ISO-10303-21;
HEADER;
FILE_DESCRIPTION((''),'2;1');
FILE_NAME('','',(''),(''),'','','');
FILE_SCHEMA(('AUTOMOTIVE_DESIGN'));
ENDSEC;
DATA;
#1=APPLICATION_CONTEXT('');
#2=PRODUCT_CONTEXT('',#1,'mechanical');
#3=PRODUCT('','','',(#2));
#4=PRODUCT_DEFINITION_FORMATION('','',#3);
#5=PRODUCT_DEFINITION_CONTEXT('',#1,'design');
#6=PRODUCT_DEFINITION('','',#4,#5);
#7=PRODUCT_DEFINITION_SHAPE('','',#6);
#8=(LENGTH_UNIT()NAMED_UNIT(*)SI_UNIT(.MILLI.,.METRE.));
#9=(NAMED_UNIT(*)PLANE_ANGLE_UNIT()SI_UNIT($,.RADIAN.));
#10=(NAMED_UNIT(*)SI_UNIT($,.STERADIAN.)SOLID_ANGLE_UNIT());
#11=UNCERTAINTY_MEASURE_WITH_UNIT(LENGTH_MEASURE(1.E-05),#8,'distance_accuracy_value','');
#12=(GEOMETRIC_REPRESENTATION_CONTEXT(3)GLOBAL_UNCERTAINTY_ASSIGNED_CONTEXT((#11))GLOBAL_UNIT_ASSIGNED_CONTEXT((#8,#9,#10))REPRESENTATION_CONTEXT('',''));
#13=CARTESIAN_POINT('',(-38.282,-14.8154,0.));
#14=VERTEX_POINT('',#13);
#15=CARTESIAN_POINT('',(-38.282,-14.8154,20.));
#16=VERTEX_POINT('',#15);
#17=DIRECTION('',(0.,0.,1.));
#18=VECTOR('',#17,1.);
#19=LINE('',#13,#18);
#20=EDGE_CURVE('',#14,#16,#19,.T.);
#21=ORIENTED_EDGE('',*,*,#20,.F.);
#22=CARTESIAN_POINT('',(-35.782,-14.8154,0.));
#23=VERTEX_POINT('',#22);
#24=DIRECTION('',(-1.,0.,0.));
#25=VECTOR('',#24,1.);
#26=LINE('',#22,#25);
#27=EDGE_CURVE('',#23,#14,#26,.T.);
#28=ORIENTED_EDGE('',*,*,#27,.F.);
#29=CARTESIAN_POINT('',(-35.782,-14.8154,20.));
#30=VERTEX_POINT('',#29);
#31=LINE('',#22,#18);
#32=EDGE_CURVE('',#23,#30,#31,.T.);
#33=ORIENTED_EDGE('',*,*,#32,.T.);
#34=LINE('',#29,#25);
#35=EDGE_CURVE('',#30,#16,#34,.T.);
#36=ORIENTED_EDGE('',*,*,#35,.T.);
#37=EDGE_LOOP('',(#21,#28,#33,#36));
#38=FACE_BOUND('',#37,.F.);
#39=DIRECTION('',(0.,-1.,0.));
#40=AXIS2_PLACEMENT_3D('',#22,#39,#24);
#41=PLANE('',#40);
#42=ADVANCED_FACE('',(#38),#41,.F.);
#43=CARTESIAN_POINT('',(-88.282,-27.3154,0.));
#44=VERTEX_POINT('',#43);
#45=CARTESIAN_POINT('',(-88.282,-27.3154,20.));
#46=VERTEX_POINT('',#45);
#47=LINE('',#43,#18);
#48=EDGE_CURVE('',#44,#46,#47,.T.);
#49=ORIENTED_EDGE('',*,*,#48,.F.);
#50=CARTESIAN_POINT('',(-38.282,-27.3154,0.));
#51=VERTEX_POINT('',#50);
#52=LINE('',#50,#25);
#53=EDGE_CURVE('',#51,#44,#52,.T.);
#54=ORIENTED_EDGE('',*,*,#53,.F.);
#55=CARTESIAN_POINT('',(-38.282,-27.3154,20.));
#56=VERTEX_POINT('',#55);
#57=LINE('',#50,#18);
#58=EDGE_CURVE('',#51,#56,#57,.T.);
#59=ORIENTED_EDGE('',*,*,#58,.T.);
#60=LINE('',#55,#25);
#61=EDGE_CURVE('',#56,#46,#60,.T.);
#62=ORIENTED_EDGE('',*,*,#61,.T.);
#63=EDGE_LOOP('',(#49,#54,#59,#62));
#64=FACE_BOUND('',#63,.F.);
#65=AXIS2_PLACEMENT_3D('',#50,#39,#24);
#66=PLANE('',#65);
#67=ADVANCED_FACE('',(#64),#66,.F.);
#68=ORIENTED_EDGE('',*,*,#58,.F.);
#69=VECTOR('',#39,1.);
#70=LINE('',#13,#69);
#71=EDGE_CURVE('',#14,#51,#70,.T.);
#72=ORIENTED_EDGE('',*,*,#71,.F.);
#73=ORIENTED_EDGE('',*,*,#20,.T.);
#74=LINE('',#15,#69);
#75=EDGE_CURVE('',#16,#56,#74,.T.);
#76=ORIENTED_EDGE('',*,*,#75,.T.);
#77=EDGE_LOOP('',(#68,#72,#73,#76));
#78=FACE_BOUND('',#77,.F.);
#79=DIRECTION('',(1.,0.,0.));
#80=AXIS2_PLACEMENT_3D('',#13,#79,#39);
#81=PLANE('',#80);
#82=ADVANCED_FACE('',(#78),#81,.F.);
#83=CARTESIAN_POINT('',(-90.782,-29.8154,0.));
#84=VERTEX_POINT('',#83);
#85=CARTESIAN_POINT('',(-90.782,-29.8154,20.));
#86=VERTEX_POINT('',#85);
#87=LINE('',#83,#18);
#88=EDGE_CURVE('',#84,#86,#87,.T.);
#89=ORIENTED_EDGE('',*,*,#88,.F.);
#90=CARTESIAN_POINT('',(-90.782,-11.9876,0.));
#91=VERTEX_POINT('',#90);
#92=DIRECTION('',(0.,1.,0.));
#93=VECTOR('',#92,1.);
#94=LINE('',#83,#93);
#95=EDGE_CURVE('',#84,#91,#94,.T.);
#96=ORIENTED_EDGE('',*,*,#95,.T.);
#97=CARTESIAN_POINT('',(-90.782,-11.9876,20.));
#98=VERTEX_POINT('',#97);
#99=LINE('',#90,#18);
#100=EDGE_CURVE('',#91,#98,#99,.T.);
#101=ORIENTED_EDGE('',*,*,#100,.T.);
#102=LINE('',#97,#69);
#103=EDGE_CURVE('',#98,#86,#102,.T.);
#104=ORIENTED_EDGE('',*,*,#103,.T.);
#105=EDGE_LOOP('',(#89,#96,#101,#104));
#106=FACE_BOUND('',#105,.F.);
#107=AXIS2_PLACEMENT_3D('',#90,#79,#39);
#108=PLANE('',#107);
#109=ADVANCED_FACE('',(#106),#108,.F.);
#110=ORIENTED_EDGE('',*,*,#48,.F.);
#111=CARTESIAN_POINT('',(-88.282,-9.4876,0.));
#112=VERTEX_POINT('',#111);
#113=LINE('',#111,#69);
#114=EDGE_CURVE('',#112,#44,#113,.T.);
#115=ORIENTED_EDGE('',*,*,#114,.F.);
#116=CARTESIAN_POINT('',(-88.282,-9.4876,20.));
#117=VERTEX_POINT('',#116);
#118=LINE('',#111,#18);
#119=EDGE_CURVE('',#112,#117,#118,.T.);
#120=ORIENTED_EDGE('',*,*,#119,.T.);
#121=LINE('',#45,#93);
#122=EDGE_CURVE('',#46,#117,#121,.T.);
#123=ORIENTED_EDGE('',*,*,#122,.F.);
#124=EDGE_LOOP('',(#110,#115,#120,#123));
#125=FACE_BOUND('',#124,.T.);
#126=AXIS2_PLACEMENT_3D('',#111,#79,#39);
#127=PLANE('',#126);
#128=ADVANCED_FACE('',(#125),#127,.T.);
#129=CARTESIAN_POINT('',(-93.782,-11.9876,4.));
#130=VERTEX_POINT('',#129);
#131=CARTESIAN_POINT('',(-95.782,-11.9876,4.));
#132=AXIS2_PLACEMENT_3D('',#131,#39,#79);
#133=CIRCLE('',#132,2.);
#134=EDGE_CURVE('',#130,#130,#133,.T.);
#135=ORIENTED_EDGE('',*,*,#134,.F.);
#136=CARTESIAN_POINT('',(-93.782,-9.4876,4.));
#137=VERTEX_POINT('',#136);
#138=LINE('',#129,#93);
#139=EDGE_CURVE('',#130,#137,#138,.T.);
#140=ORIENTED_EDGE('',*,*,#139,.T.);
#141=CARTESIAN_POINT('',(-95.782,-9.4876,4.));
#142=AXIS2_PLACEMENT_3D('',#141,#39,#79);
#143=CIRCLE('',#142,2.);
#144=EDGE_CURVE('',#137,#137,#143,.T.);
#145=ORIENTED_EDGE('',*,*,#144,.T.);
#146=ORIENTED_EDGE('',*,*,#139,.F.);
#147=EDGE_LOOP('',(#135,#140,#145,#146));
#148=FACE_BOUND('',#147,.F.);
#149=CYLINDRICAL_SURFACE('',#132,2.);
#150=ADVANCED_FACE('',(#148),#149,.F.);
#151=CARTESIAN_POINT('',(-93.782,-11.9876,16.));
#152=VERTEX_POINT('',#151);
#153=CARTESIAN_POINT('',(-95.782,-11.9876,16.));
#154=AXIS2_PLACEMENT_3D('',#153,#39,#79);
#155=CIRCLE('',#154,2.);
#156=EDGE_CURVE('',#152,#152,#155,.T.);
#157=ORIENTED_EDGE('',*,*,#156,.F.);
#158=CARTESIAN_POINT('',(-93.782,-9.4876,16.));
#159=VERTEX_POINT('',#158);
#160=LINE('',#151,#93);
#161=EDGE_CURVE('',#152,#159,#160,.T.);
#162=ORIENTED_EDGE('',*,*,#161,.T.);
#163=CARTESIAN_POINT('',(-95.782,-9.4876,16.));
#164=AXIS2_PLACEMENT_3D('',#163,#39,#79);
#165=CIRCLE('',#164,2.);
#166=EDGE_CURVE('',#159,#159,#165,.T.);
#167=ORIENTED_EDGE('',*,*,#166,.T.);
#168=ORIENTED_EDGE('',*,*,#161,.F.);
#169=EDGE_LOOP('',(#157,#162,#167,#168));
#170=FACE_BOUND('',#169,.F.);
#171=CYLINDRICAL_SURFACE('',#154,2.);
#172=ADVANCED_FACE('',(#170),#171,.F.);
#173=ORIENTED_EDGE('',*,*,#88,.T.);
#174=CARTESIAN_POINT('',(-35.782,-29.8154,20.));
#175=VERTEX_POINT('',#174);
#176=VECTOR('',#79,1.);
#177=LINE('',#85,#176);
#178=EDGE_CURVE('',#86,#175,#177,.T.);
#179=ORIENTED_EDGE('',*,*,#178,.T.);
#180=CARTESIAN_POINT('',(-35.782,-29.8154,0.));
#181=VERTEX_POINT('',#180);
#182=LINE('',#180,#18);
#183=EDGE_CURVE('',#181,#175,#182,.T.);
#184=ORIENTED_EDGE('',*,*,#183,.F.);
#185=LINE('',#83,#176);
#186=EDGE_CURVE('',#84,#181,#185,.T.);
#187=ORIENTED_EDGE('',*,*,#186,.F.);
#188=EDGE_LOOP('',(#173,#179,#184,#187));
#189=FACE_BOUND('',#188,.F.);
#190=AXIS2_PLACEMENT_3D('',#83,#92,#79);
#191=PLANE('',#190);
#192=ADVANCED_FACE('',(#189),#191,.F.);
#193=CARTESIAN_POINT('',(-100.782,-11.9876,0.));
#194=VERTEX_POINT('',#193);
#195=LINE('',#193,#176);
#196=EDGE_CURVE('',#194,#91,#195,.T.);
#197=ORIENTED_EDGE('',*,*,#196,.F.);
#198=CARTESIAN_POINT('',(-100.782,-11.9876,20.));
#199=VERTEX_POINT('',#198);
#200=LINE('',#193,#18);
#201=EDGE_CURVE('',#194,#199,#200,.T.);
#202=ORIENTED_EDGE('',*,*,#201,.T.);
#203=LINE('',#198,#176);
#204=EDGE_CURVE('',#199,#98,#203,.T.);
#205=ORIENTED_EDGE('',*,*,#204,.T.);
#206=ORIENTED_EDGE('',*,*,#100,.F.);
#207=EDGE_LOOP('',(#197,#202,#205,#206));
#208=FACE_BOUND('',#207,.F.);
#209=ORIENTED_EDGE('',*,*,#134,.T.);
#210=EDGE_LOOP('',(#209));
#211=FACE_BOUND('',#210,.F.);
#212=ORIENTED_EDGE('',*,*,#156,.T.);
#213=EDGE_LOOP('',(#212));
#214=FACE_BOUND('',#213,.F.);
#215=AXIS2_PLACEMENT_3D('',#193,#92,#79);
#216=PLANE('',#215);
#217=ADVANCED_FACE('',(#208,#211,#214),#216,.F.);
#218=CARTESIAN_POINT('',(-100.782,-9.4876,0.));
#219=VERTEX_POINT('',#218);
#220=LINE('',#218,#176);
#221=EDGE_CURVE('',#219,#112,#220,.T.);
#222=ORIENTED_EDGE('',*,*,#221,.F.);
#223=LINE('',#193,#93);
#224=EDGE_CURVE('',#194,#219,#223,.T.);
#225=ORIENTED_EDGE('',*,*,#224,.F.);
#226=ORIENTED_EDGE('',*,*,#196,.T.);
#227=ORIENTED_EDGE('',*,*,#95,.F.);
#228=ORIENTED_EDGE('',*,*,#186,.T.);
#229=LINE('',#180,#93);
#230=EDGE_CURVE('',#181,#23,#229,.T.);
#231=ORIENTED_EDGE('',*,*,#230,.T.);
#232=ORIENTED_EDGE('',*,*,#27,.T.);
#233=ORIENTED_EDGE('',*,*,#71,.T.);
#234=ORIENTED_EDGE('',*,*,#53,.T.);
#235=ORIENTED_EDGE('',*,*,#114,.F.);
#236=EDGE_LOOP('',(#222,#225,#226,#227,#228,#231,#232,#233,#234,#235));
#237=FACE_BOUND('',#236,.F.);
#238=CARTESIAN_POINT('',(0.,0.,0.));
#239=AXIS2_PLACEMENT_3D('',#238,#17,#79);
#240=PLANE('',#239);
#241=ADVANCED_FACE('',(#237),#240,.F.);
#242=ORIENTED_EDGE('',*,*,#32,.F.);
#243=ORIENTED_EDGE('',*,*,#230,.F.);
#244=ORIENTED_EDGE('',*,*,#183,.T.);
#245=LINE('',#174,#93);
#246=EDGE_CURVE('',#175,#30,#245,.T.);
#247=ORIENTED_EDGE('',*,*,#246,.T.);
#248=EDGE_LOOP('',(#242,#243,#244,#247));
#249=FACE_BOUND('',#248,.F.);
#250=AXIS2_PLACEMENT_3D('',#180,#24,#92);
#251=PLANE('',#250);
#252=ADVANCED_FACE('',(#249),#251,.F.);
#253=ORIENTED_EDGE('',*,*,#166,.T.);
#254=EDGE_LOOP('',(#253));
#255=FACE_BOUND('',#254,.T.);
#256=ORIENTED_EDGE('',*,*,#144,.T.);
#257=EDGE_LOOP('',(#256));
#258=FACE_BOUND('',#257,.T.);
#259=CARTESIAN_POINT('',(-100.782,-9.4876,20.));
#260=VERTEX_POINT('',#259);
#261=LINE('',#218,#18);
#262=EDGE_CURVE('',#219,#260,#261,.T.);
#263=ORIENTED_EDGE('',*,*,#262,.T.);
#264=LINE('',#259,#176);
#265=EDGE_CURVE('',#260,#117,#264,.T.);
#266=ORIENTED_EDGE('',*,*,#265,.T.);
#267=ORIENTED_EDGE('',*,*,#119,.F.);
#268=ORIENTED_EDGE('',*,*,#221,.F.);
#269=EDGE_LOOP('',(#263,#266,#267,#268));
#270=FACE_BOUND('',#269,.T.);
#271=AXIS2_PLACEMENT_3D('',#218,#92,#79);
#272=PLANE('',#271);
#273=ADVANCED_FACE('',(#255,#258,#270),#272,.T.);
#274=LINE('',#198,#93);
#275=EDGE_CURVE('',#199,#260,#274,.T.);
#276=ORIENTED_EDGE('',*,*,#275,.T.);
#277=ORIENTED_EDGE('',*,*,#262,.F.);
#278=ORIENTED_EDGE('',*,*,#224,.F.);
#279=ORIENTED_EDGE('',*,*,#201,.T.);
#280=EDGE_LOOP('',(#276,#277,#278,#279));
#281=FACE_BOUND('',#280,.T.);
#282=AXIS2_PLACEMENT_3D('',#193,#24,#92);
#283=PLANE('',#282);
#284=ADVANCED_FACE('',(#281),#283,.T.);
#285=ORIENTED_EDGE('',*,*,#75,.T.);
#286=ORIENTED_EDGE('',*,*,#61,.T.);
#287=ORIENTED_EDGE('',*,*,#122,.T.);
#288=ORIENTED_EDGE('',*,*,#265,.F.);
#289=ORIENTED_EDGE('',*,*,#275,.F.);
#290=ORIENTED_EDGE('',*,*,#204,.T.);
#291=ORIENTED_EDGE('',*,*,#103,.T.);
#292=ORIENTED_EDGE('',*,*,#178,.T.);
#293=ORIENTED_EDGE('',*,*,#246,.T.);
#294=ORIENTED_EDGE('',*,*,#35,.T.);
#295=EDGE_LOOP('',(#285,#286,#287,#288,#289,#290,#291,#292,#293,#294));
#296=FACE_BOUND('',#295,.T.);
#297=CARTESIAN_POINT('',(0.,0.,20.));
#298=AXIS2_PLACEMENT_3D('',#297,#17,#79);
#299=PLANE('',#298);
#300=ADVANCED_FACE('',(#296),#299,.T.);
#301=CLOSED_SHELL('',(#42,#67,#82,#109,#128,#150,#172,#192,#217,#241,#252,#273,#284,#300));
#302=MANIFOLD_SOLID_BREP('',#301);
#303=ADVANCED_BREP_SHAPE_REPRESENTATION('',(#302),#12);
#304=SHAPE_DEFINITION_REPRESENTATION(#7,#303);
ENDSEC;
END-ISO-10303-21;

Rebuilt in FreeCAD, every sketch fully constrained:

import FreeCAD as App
import Part
import Sketcher


def add_polygon(sketch, points):
    """Adds a closed chain of lines whose ends are joined by coincident constraints."""
    first, n = sketch.GeometryCount, len(points)
    for a, b in zip(points, points[1:] + points[:1]):
        sketch.addGeometry(Part.LineSegment(App.Vector(*a, 0), App.Vector(*b, 0)), False)
    for i in range(n):
        sketch.addConstraint(Sketcher.Constraint("Coincident", first + i, 2, first + (i + 1) % n, 1))

doc = App.newDocument("Part")
body = doc.addObject("PartDesign::Body", "Body")

sketch1 = body.newObject("Sketcher::SketchObject", "Sketch")
sketch1.AttachmentSupport = (doc.getObject("XY_Plane"), [""])
sketch1.MapMode = "FlatFace"
add_polygon(sketch1, [(-100.8, -9.5), (-100.8, -12), (-90.8, -12), (-90.8, -29.8), (-35.8, -29.8), (-35.8, -14.8), (-38.3, -14.8), (-38.3, -27.3), (-88.3, -27.3), (-88.3, -9.5)])
sketch1.addConstraint([
    Sketcher.Constraint("Vertical", 0),
    Sketcher.Constraint("Horizontal", 1),
    Sketcher.Constraint("Vertical", 2),
    Sketcher.Constraint("Horizontal", 3),
    Sketcher.Constraint("Vertical", 4),
    Sketcher.Constraint("Horizontal", 5),
    Sketcher.Constraint("Vertical", 6),
    Sketcher.Constraint("Horizontal", 7),
    Sketcher.Constraint("Vertical", 8),
    Sketcher.Constraint("Horizontal", 9),
    Sketcher.Constraint("Equal", 5, 0),
    Sketcher.Constraint("Equal", 9, 6),
    Sketcher.Constraint("Equal", 2, 8),
    Sketcher.Constraint("DistanceX", 1, 1, 1, 2, 10.0),
    Sketcher.Constraint("DistanceY", 4, 1, 4, 2, 15.0),
    Sketcher.Constraint("DistanceX", 5, 2, 5, 1, 2.5),
    Sketcher.Constraint("DistanceX", 0, 2, 3, 2, 65.0),
    Sketcher.Constraint("DistanceY", 2, 2, 2, 1, 17.8278),
    Sketcher.Constraint("DistanceX", 0, 2, -1, 1, 100.782),
    Sketcher.Constraint("DistanceY", 0, 2, -1, 1, 11.9876),
])
pad1 = body.newObject("PartDesign::Pad", "Pad")
pad1.Profile = sketch1
pad1.Length = 20

sketch2 = body.newObject("Sketcher::SketchObject", "Sketch001")
sketch2.AttachmentSupport = (doc.getObject("XZ_Plane"), [""])
sketch2.MapMode = "FlatFace"
sketch2.AttachmentOffset = App.Placement(App.Vector(0, 0, 11.9876), App.Rotation())
sketch2.addGeometry([
    Part.Circle(App.Vector(-95.8, 4, 0), App.Vector(0, 0, 1), 2),
    Part.Circle(App.Vector(-95.8, 16, 0), App.Vector(0, 0, 1), 2),
], False)
sketch2.addConstraint([
    Sketcher.Constraint("Equal", 0, 1),
    Sketcher.Constraint("Vertical", 0, 3, 1, 3),
    Sketcher.Constraint("Diameter", 0, 4.0),
    Sketcher.Constraint("DistanceY", -1, 1, 0, 3, 4.0),
    Sketcher.Constraint("DistanceY", 0, 3, 1, 3, 12.0),
    Sketcher.Constraint("DistanceX", 0, 3, -1, 1, 95.782),
])
pocket1 = body.newObject("PartDesign::Pocket", "Pocket")
pocket1.Profile = sketch2
pocket1.Length = 4

doc.recompute()
